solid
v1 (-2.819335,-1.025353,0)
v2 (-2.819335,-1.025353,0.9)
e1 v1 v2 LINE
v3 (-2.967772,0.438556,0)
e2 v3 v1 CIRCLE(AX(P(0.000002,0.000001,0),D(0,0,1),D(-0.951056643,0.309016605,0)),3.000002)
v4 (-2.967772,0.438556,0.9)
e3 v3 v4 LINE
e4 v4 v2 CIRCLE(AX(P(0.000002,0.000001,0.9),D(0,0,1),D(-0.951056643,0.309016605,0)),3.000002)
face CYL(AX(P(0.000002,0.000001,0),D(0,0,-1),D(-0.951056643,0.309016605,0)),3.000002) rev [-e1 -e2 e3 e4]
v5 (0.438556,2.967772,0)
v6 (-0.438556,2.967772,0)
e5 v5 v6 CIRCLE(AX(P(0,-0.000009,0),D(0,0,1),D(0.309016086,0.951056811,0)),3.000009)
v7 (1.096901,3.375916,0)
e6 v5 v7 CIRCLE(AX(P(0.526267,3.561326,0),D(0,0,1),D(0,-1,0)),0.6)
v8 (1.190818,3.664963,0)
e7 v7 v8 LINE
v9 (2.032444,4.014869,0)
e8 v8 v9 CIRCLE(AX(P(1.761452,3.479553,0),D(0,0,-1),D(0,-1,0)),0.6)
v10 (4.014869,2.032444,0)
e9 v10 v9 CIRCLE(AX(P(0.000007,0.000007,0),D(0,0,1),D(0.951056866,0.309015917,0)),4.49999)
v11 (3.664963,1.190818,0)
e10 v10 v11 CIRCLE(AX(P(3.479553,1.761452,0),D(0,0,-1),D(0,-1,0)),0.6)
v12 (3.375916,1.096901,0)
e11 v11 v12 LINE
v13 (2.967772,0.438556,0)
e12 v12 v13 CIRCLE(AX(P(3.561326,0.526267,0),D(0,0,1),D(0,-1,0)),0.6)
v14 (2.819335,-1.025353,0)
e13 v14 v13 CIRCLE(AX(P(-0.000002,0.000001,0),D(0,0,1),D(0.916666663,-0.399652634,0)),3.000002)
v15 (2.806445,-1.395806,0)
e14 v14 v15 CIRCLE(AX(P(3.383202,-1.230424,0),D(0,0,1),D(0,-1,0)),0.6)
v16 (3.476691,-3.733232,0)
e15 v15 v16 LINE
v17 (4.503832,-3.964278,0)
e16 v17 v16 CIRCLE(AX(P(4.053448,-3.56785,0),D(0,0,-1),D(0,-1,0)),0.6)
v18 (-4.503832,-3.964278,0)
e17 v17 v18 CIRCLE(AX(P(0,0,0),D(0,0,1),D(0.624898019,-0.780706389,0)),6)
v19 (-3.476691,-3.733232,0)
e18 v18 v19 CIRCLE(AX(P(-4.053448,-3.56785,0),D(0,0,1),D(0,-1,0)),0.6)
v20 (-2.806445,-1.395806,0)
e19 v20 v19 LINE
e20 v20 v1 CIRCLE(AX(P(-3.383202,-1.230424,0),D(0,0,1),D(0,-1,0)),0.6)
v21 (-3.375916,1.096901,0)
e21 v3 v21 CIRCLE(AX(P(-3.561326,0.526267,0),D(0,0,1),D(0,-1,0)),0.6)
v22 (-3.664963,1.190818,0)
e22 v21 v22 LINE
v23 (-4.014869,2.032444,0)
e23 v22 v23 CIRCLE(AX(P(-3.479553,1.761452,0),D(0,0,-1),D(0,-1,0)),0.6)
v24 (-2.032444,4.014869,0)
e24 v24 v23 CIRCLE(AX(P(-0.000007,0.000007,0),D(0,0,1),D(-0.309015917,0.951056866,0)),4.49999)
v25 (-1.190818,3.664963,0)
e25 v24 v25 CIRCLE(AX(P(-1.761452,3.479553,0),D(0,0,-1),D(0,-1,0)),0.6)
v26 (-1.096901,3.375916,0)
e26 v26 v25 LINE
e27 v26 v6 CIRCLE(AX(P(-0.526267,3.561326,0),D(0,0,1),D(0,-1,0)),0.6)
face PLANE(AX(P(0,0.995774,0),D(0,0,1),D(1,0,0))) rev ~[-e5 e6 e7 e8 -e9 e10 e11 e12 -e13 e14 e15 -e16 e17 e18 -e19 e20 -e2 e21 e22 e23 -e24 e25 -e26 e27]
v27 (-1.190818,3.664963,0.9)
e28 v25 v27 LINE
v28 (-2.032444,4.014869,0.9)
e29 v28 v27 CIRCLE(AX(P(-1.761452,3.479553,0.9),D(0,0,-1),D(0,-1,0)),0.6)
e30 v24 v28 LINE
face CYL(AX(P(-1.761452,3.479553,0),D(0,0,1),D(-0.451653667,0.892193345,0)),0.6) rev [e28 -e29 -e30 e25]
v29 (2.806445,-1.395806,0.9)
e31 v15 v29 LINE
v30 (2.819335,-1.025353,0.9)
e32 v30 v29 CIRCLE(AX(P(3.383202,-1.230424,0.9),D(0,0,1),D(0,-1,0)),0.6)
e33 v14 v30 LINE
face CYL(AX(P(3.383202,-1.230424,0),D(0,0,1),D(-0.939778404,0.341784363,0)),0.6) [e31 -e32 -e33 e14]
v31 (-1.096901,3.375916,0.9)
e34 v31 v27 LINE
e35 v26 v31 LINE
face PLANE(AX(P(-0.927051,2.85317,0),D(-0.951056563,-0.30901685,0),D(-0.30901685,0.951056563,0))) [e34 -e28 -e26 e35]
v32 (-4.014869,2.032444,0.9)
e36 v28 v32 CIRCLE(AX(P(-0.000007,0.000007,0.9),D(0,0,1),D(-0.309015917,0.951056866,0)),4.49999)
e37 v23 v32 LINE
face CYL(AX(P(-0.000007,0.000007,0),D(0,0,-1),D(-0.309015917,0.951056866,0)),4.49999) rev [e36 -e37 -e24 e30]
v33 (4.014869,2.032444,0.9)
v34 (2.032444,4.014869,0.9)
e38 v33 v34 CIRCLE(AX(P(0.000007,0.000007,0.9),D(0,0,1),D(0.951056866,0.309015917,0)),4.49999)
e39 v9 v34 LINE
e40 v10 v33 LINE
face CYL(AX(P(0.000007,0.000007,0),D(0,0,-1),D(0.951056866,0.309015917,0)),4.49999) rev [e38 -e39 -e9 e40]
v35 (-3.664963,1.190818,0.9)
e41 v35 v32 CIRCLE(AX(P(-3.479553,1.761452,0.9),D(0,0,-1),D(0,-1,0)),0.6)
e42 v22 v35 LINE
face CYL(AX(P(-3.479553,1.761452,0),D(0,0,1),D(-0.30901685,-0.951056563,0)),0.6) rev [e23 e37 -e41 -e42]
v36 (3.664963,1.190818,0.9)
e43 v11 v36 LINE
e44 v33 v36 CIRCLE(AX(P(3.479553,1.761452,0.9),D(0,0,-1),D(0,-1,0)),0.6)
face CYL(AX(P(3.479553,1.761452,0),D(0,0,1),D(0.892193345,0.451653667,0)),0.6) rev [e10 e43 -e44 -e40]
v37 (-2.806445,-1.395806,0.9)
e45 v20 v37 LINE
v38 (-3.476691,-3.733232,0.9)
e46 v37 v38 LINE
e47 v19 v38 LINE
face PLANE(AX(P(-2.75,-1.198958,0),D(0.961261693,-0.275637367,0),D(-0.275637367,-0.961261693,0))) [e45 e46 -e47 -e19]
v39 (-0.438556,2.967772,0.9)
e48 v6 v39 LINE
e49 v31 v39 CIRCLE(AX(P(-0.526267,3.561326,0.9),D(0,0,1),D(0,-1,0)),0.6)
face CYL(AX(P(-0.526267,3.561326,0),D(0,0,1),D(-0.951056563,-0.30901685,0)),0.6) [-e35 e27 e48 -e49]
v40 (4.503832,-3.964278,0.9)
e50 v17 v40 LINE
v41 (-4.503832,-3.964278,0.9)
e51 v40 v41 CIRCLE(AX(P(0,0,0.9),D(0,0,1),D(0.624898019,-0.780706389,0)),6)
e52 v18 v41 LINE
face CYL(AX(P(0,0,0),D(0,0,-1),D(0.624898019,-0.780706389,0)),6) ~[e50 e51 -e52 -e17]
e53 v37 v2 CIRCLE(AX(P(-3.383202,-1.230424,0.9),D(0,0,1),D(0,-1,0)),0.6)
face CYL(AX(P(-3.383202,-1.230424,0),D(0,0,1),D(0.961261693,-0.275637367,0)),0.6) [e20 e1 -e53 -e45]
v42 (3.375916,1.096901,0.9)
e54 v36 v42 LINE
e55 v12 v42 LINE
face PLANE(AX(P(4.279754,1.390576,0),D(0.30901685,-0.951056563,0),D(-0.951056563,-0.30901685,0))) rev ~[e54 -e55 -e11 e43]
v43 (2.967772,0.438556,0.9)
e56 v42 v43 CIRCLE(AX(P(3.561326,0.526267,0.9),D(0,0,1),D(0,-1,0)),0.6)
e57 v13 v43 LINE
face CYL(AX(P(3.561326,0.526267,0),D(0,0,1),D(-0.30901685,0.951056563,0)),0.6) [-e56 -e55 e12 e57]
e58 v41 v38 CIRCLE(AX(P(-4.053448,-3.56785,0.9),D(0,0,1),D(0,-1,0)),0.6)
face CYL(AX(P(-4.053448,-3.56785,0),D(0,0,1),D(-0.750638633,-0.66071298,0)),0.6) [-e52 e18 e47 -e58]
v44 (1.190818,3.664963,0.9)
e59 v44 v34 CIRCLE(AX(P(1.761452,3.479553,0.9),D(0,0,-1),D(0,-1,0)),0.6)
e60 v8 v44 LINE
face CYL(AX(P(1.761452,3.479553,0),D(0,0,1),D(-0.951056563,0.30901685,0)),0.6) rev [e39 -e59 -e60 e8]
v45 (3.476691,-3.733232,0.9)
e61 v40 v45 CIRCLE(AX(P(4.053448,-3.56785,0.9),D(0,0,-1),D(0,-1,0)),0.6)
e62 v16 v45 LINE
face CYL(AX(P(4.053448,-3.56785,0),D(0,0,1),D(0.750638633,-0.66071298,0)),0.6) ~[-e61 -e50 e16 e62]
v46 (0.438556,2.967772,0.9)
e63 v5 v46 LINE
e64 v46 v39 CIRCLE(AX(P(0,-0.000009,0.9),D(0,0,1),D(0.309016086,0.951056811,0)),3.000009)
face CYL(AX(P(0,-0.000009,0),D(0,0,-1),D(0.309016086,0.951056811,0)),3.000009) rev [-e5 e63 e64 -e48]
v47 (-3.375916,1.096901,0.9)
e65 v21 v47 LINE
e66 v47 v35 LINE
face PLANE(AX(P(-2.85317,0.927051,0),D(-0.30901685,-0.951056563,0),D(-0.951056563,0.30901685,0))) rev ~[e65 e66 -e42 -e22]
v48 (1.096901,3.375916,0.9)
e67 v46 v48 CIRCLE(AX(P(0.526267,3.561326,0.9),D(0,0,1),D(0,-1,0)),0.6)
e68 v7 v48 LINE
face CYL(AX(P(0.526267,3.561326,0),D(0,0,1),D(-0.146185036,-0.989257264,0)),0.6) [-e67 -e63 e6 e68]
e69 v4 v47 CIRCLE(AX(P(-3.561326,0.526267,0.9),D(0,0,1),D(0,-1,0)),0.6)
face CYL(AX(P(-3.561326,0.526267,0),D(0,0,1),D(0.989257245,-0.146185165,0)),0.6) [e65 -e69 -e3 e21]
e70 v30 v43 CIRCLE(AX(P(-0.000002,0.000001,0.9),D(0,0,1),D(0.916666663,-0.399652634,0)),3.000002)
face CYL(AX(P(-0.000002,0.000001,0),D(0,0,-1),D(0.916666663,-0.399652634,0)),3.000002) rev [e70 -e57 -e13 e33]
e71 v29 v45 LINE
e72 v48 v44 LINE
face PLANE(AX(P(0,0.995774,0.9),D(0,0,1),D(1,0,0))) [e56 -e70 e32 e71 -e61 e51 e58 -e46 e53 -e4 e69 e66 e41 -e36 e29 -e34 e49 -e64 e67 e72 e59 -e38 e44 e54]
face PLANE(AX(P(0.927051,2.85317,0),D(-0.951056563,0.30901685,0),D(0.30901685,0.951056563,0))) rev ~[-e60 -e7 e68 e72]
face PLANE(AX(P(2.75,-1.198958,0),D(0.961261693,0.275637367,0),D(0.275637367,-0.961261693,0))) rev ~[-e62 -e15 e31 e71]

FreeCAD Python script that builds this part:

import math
import FreeCAD as App
import Part
import Sketcher
Q = App.Units.Quantity


def edges_at(feature, points):
    """Names of the edges that pass closest to the given points."""
    edges = feature.Shape.Edges
    near = lambda p: min(range(len(edges)), key=lambda i: edges[i].distToShape(Part.Vertex(*p))[0])
    return sorted({f"Edge{near(p) + 1}" for p in points})

doc = App.newDocument("Part")
body = doc.addObject("PartDesign::Body", "Body")

sketch1 = body.newObject("Sketcher::SketchObject", "Sketch")
sketch1.AttachmentSupport = (doc.getObject("XY_Plane"), [""])
sketch1.MapMode = "FlatFace"
sketch1.addGeometry([
    Part.ArcOfCircle(Part.Circle(App.Vector(0, 0, 0), App.Vector(0, 0, 1), 6), math.radians(-51.325297), math.radians(231.325297)),
    Part.LineSegment(App.Vector(-3.749388, -4.684238, 0), App.Vector(-2.75, -1.198958, 0)),
    Part.ArcOfCircle(Part.Circle(App.Vector(0.000002, 0.000001, 0), App.Vector(0, 0, 1), 3.000002), math.radians(162.000023), math.radians(203.556465)),
    Part.LineSegment(App.Vector(-2.85317, 0.927051, 0), App.Vector(-4.279754, 1.390576, 0)),
    Part.ArcOfCircle(Part.Circle(App.Vector(-0.000007, 0.000007, 0), App.Vector(0, 0, 1), 4.49999), math.radians(107.999935), math.radians(162.000065)),
    Part.LineSegment(App.Vector(-1.390576, 4.279754, 0), App.Vector(-0.927051, 2.85317, 0)),
    Part.ArcOfCircle(Part.Circle(App.Vector(0, -0.000009, 0), App.Vector(0, 0, 1), 3.000009), math.radians(72.000055), math.radians(107.999945)),
    Part.LineSegment(App.Vector(0.927051, 2.85317, 0), App.Vector(1.390576, 4.279754, 0)),
    Part.ArcOfCircle(Part.Circle(App.Vector(0.000007, 0.000007, 0), App.Vector(0, 0, 1), 4.49999), math.radians(17.999935), math.radians(72.000065)),
    Part.LineSegment(App.Vector(4.279754, 1.390576, 0), App.Vector(2.85317, 0.927051, 0)),
    Part.ArcOfCircle(Part.Circle(App.Vector(-0.000002, 0.000001, 0), App.Vector(0, 0, 1), 3.000002), math.radians(-23.556465), math.radians(17.999977)),
    Part.LineSegment(App.Vector(2.75, -1.198958, 0), App.Vector(3.749388, -4.684238, 0)),
], False)
sketch1.addConstraint([
    Sketcher.Constraint("Coincident", 0, 2, 1, 1),
    Sketcher.Constraint("Coincident", 1, 2, 2, 2),
    Sketcher.Constraint("Coincident", 2, 1, 3, 1),
    Sketcher.Constraint("Coincident", 3, 2, 4, 2),
    Sketcher.Constraint("Coincident", 4, 1, 5, 1),
    Sketcher.Constraint("Coincident", 5, 2, 6, 2),
    Sketcher.Constraint("Coincident", 6, 1, 7, 1),
    Sketcher.Constraint("Coincident", 7, 2, 8, 2),
    Sketcher.Constraint("Coincident", 8, 1, 9, 1),
    Sketcher.Constraint("Coincident", 9, 2, 10, 2),
    Sketcher.Constraint("Coincident", 10, 1, 11, 1),
    Sketcher.Constraint("Coincident", 11, 2, 0, 1),
    Sketcher.Constraint("Coincident", 0, 3, -1, 1),
    Sketcher.Constraint("Coincident", 2, 3, -1, 1),
    Sketcher.Constraint("Coincident", 6, 3, -1, 1),
    Sketcher.Constraint("Coincident", 10, 3, -1, 1),
    Sketcher.Constraint("Coincident", 8, 3, 2, 3),
    Sketcher.Constraint("Equal", 4, 8),
    Sketcher.Constraint("Equal", 2, 10),
    Sketcher.Constraint("Symmetric", 2, 3, 4, 3, -1, 1),
    Sketcher.Constraint("Perpendicular", 3, 7),
    Sketcher.Constraint("Perpendicular", 5, 9),
    Sketcher.Constraint("Horizontal", 5, 2, 6, 1),
    Sketcher.Constraint("Horizontal", 4, 1, 7, 2),
    Sketcher.Constraint("Horizontal", 3, 2, 8, 1),
    Sketcher.Constraint("Horizontal", 1, 2, 10, 1),
    Sketcher.Constraint("Horizontal", 0, 2, 11, 2),
    Sketcher.Constraint("Equal", 3, 5),
    Sketcher.Constraint("Radius", 0, Q("6 mm")),
    Sketcher.Constraint("Radius", 2, Q("3.000002 mm")),
    Sketcher.Constraint("Angle", 1, Q("73.999999 deg")),
    Sketcher.Constraint("Angle", 3, Q("162.000009 deg")),
    Sketcher.Constraint("Distance", 3, Q("1.499999 mm")),
    Sketcher.Constraint("DistanceX", 1, 2, -1, 1, Q("2.75 mm")),
    Sketcher.Constraint("DistanceX", 2, 1, -1, 1, Q("2.85317 mm")),
    Sketcher.Constraint("DistanceX", 5, 2, -1, 1, Q("0.927051 mm")),
])
pad1 = body.newObject("PartDesign::Pad", "Pad")
pad1.Profile = sketch1
pad1.Length = 0.9
doc.recompute()

fillet = body.newObject("PartDesign::Fillet", "Fillet")
fillet.Base = (pad1, edges_at(pad1, [
    (3.749, -4.684, 0.45),
    (2.75, -1.199, 0.45),
    (2.853, 0.927, 0.45),
    (4.28, 1.391, 0.45),
    (1.391, 4.28, 0.45),
    (0.927, 2.853, 0.45),
    (-0.927, 2.853, 0.45),
    (-1.391, 4.28, 0.45),
    (-4.28, 1.391, 0.45),
    (-2.853, 0.927, 0.45),
    (-2.75, -1.199, 0.45),
    (-3.749, -4.684, 0.45),
]))
fillet.Radius = 0.6

doc.recompute()
